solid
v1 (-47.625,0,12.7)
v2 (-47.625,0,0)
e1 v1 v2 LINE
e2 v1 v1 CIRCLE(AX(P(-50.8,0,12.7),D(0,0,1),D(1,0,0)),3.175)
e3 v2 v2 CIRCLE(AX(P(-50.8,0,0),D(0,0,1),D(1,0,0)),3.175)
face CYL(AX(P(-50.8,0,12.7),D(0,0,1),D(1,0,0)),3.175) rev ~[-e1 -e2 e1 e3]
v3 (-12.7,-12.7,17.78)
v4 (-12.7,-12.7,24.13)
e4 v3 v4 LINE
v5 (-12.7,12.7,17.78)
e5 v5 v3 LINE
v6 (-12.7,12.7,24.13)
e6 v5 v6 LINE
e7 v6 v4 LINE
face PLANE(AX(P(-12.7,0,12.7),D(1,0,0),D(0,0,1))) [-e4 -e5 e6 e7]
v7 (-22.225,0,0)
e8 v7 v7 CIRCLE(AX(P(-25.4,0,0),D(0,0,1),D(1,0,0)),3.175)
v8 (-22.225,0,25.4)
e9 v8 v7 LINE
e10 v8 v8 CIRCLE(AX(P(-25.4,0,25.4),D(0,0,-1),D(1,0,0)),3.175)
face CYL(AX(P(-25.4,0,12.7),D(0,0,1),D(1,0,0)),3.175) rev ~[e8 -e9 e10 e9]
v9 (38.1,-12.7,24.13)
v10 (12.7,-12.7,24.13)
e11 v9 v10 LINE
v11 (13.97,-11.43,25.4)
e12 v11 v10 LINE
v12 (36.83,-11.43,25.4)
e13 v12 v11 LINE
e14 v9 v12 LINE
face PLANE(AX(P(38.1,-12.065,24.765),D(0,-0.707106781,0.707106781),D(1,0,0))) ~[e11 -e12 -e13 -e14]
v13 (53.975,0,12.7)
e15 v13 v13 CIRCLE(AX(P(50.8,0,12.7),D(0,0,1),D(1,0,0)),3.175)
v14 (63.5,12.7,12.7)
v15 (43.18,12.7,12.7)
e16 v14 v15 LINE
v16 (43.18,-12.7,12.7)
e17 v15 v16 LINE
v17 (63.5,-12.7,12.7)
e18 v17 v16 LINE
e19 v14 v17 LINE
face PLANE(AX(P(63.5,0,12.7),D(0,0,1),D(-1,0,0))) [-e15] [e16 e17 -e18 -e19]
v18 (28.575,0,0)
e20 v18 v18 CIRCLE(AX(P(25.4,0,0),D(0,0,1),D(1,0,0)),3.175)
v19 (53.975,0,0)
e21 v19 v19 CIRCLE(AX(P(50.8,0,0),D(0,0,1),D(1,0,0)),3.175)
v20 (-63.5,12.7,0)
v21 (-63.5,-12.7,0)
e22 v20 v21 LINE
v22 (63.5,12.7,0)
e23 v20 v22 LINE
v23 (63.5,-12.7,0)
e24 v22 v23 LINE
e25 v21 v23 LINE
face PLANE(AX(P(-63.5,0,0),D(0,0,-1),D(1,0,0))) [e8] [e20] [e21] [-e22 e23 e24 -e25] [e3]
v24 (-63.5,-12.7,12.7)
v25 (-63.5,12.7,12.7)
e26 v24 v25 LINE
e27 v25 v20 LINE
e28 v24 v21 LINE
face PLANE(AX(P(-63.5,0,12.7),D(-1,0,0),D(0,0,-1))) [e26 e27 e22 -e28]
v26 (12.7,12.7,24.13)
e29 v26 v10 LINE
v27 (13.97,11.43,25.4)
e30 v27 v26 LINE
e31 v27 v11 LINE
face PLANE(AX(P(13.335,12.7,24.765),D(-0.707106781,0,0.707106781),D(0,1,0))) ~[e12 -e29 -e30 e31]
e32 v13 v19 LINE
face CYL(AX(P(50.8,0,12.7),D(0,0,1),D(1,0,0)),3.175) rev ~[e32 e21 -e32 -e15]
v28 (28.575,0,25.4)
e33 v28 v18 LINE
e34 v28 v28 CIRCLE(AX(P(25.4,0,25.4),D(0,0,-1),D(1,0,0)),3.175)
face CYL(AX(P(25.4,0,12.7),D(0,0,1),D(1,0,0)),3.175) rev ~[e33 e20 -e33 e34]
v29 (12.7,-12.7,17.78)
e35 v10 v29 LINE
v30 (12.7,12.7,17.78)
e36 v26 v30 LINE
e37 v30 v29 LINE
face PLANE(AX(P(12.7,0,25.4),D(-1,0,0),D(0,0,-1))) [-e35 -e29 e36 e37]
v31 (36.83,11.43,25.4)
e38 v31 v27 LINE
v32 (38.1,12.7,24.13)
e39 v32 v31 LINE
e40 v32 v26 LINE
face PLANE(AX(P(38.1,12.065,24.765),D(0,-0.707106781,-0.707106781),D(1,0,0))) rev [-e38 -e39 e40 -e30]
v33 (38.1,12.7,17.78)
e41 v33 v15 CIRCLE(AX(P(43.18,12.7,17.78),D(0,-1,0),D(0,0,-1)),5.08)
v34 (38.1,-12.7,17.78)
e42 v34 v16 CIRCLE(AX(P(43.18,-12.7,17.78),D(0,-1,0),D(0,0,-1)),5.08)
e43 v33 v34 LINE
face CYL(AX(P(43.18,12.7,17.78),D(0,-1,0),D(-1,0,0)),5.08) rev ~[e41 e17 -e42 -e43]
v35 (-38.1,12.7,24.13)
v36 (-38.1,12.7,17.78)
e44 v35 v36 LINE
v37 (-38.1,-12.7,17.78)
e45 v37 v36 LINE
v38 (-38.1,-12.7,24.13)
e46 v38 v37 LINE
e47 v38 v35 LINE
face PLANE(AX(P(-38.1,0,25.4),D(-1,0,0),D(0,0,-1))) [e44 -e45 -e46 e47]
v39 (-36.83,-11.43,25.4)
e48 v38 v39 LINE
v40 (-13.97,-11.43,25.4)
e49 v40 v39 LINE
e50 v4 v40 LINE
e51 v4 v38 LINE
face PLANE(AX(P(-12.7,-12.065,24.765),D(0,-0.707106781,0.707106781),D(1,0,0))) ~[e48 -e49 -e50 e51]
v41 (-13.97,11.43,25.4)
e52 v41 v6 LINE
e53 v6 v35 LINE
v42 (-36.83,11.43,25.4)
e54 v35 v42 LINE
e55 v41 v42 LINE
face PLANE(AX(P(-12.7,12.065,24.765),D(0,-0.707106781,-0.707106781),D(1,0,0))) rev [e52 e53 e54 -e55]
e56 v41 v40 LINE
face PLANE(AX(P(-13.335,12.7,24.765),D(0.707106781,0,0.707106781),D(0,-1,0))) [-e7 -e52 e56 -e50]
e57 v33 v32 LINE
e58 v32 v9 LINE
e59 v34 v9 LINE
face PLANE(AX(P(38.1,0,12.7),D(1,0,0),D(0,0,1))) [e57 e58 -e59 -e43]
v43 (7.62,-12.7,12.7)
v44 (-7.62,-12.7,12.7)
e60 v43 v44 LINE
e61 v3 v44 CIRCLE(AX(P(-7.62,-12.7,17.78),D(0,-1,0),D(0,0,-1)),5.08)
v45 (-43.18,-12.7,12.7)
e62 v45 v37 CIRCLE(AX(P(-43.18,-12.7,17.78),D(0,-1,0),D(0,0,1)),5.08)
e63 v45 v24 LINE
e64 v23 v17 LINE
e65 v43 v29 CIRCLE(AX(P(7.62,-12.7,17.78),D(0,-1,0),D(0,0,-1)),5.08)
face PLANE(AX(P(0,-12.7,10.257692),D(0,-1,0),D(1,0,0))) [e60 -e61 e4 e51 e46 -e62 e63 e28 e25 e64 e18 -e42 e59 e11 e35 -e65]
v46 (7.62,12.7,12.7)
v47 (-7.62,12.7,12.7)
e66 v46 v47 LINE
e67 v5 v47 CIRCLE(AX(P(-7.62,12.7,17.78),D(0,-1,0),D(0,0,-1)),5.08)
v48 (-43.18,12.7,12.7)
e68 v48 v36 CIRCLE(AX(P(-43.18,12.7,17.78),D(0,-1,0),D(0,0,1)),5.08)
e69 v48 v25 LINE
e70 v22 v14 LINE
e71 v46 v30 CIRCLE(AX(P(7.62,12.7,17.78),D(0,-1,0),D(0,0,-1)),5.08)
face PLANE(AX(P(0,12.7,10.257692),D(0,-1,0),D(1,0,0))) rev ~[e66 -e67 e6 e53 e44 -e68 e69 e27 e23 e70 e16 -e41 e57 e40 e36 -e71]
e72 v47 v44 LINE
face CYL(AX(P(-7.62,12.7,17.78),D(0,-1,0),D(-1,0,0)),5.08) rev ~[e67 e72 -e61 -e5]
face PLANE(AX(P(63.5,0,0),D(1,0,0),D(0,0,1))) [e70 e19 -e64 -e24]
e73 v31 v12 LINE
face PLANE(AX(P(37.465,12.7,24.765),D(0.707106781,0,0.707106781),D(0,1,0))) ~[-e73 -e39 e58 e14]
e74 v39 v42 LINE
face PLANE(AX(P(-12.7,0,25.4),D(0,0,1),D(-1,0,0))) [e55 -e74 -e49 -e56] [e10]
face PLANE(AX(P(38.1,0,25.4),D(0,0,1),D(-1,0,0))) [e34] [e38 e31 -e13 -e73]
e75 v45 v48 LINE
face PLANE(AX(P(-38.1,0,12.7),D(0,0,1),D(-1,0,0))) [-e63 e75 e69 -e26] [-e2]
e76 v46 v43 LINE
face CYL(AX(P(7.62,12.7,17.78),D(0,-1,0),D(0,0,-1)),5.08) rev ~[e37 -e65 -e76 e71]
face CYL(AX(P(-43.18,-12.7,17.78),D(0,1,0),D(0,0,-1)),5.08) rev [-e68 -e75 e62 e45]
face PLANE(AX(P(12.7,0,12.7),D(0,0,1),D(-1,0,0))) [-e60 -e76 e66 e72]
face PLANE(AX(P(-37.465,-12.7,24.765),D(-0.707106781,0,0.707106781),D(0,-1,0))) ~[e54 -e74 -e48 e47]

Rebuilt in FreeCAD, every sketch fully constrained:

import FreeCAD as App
import Part
import Sketcher
from FreeCAD import Vector
Q = App.Units.Quantity


def edges_at(feature, points):
    """Names of the edges that pass closest to the given points."""
    edges = feature.Shape.Edges
    near = lambda p: min(range(len(edges)), key=lambda i: edges[i].distToShape(Part.Vertex(*p))[0])
    return sorted({f"Edge{near(p) + 1}" for p in points})


def add_polygon(sketch, points):
    """Adds a closed chain of lines whose ends are joined by coincident constraints."""
    first, n = sketch.GeometryCount, len(points)
    for a, b in zip(points, points[1:] + points[:1]):
        sketch.addGeometry(Part.LineSegment(App.Vector(*a, 0), App.Vector(*b, 0)), False)
    for i in range(n):
        sketch.addConstraint(Sketcher.Constraint("Coincident", first + i, 2, first + (i + 1) % n, 1))

doc = App.newDocument("Part")
body = doc.addObject("PartDesign::Body", "Body")

# Sketch on XZ plane
sketch1 = body.newObject("Sketcher::SketchObject", "Sketch")
sketch1.AttachmentSupport = (doc.getObject("XZ_Plane"), [""])
sketch1.MapMode = "FlatFace"
add_polygon(sketch1, [(-64, 13), (-64, 0), (64, 0), (64, 13), (38, 13), (38, 25), (13, 25), (13, 13), (-13, 13), (-13, 25), (-38, 25), (-38, 13)])  # lines 0-11
sketch1.addConstraint(Sketcher.Constraint("Vertical", 0))
sketch1.addConstraint(Sketcher.Constraint("Horizontal", 1))
sketch1.addConstraint(Sketcher.Constraint("Vertical", 2))
sketch1.addConstraint(Sketcher.Constraint("Horizontal", 3))
sketch1.addConstraint(Sketcher.Constraint("Vertical", 4))
sketch1.addConstraint(Sketcher.Constraint("Horizontal", 5))
sketch1.addConstraint(Sketcher.Constraint("Vertical", 6))
sketch1.addConstraint(Sketcher.Constraint("Horizontal", 7))
sketch1.addConstraint(Sketcher.Constraint("Vertical", 8))
sketch1.addConstraint(Sketcher.Constraint("Horizontal", 9))
sketch1.addConstraint(Sketcher.Constraint("Vertical", 10))
sketch1.addConstraint(Sketcher.Constraint("Horizontal", 11))
sketch1.addConstraint(Sketcher.Constraint("Symmetric", 0, 2, 1, 2, -1, 1))
sketch1.addConstraint(Sketcher.Constraint("Symmetric", 5, 2, 8, 2, -2))
sketch1.addConstraint(Sketcher.Constraint("Symmetric", 3, 2, 10, 2, -2))
sketch1.addConstraint(Sketcher.Constraint("Horizontal", 3, 2, 6, 2))
sketch1.addConstraint(Sketcher.Constraint("Equal", 3, 5))
sketch1.addConstraint(Sketcher.Constraint("Equal", 5, 7))
sketch1.addConstraint(Sketcher.Constraint("Equal", 2, 4))
sketch1.addConstraint(Sketcher.Constraint("DistanceX", 1, 1, 1, 2, Q("5 in")))
sketch1.addConstraint(Sketcher.Constraint("DistanceY", 0, 2, 0, 1, Q("0.5 in")))
pad1 = body.newObject("PartDesign::Pad", "Pad")
pad1.Profile = sketch1
pad1.Type = "TwoLengths"
pad1.Length = Q("0.5 in")
pad1.Length2 = Q("0.5 in")

# Sketch on XY plane
sketch2 = body.newObject("Sketcher::SketchObject", "Sketch001")
sketch2.AttachmentSupport = (doc.getObject("XY_Plane"), [""])
sketch2.MapMode = "FlatFace"
sketch2.AttachmentOffset = App.Placement(Vector(0, 0, 0.5 * 25.4), App.Rotation())
sketch2.addGeometry(Part.Circle(Vector(-50.8, 0, 0), Vector(0, 0, 1), 3.2), False)
sketch2.addGeometry(Part.Circle(Vector(50.8, 0, 0), Vector(0, 0, 1), 3.2), False)
sketch2.addGeometry(Part.Circle(Vector(-25.4, 0, 0), Vector(0, 0, 1), 3.2), False)
sketch2.addGeometry(Part.Circle(Vector(25.4, 0, 0), Vector(0, 0, 1), 3.2), False)
sketch2.addConstraint(Sketcher.Constraint("Equal", 0, 1))
sketch2.addConstraint(Sketcher.Constraint("Equal", 1, 2))
sketch2.addConstraint(Sketcher.Constraint("Equal", 2, 3))
sketch2.addConstraint(Sketcher.Constraint("Symmetric", 0, 3, 1, 3, -1, 1))
sketch2.addConstraint(Sketcher.Constraint("Symmetric", 2, 3, 3, 3, -1, 1))
sketch2.addConstraint(Sketcher.Constraint("PointOnObject", 0, 3, -1))
sketch2.addConstraint(Sketcher.Constraint("PointOnObject", 2, 3, -1))
sketch2.addConstraint(Sketcher.Constraint("Diameter", 0, Q("0.25 in")))
sketch2.addConstraint(Sketcher.Constraint("DistanceX", 0, 3, -1, 1, Q("2 in")))
sketch2.addConstraint(Sketcher.Constraint("DistanceX", 2, 3, -1, 1, Q("1 in")))
pocket1 = body.newObject("PartDesign::Pocket", "Pocket")
pocket1.Profile = sketch2
pocket1.Type = "ThroughAll"
pocket1.Midplane = True
doc.recompute()

fillet = body.newObject("PartDesign::Fillet", "Fillet")
fillet.Base = (pocket1, edges_at(pocket1, [
    (-38.1, 0, 12.7),
    (12.7, 0, 12.7),
    (-12.7, 0, 12.7),
    (38.1, 0, 12.7),
]))
fillet.Radius = Q("0.2 in")
doc.recompute()

chamfer = body.newObject("PartDesign::Chamfer", "Chamfer")
chamfer.Base = (fillet, edges_at(fillet, [
    (-25.4, -12.7, 25.4),
    (-12.7, 0, 25.4),
    (-25.4, 12.7, 25.4),
    (-38.1, 0, 25.4),
    (12.7, 0, 25.4),
    (25.4, 12.7, 25.4),
    (38.1, 0, 25.4),
    (25.4, -12.7, 25.4),
]))
chamfer.Size = Q("0.05 in")

doc.recompute()
